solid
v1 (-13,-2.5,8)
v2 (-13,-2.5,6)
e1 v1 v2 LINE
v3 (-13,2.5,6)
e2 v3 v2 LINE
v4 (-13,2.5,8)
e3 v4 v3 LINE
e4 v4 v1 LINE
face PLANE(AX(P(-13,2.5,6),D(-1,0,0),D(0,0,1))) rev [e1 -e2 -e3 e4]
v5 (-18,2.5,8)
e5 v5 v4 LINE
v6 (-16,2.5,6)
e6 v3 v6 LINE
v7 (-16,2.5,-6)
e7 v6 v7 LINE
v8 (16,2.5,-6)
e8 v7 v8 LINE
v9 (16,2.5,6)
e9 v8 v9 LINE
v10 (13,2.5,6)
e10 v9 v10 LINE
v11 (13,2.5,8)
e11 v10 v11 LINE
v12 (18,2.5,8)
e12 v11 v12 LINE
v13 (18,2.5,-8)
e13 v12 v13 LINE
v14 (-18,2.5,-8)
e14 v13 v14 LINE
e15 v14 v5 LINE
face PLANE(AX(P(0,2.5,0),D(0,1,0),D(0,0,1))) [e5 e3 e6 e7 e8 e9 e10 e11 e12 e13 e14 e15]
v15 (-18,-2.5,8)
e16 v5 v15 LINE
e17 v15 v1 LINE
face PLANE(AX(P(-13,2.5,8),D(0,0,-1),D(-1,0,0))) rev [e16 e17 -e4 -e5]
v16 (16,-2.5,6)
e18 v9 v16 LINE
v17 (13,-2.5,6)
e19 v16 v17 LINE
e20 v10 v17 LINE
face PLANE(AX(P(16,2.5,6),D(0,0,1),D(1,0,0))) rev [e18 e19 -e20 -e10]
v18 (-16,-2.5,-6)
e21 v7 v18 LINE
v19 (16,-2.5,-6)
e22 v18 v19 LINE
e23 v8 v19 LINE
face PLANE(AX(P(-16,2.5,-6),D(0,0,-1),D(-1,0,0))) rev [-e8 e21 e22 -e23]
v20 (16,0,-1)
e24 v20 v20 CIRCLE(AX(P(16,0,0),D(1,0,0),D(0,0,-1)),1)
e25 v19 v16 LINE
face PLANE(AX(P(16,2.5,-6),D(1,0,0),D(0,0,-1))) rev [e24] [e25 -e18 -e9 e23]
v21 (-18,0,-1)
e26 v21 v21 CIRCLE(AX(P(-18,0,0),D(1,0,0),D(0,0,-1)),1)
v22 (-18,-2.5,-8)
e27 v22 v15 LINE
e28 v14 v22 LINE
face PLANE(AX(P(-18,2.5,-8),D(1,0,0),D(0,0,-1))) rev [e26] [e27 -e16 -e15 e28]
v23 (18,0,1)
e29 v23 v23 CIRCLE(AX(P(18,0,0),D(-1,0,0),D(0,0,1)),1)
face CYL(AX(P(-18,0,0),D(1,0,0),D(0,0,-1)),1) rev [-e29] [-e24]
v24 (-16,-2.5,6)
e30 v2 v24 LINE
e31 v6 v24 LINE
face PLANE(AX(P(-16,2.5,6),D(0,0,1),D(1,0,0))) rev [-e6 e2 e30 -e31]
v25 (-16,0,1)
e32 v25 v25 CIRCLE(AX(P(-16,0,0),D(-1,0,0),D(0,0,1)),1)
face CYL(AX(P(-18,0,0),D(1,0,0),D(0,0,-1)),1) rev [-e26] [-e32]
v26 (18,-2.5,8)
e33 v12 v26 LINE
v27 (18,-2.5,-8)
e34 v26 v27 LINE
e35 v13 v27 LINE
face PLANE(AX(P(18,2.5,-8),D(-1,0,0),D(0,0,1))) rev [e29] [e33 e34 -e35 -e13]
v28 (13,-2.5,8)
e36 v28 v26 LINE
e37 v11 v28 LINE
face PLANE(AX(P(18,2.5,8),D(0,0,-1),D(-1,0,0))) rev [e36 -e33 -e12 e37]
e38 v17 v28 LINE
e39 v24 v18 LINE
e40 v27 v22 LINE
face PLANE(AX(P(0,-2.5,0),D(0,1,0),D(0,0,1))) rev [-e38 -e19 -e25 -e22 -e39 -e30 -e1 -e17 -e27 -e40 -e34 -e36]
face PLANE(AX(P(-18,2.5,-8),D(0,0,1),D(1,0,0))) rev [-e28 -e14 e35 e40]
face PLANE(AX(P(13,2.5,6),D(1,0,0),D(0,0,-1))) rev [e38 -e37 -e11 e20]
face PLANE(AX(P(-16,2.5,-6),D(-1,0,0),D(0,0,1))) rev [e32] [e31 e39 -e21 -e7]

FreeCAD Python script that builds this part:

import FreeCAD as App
import Part
import Sketcher

V = App.Vector

doc = App.newDocument("Part")
params = doc.addObject("Spreadsheet::Sheet", "Params")
for row, (alias, value) in enumerate([
    ("sketch1_width", "5 mm"),
    ("sketch1_width2", "36 mm"),
    ("sketch1_width3", "3 mm"),
    ("sketch1_height", "2 mm"),
    ("sketch1_height2", "16 mm"),
    ("pad1_length", "5 mm"),
    ("sketch2_diameter", "2 mm"),
], start=1):
    params.set(f"A{row}", alias)
    params.set(f"B{row}", "=" + value)
    params.setAlias(f"B{row}", alias)

body = doc.addObject("PartDesign::Body", "Body")

sketch1 = body.newObject("Sketcher::SketchObject", "Sketch")
sketch1.AttachmentSupport = (doc.getObject("XZ_Plane"), [""])
sketch1.MapMode = "FlatFace"
sketch1.addGeometry(Part.LineSegment(V(13, 6, 0), V(13, 8, 0)), False)
sketch1.addGeometry(Part.LineSegment(V(13, 8, 0), V(18, 8, 0)), False)
sketch1.addGeometry(Part.LineSegment(V(18, 8, 0), V(18, -8, 0)), False)
sketch1.addGeometry(Part.LineSegment(V(18, -8, 0), V(-18, -8, 0)), False)
sketch1.addGeometry(Part.LineSegment(V(-18, -8, 0), V(-18, 8, 0)), False)
sketch1.addGeometry(Part.LineSegment(V(-18, 8, 0), V(-13, 8, 0)), False)
sketch1.addGeometry(Part.LineSegment(V(-13, 8, 0), V(-13, 6, 0)), False)
sketch1.addGeometry(Part.LineSegment(V(-13, 6, 0), V(-16, 6, 0)), False)
sketch1.addGeometry(Part.LineSegment(V(-16, 6, 0), V(-16, -6, 0)), False)
sketch1.addGeometry(Part.LineSegment(V(-16, -6, 0), V(16, -6, 0)), False)
sketch1.addGeometry(Part.LineSegment(V(16, -6, 0), V(16, 6, 0)), False)
sketch1.addGeometry(Part.LineSegment(V(16, 6, 0), V(13, 6, 0)), False)
sketch1.addConstraint(Sketcher.Constraint("Coincident", 0, 2, 1, 1))
sketch1.addConstraint(Sketcher.Constraint("Coincident", 1, 2, 2, 1))
sketch1.addConstraint(Sketcher.Constraint("Coincident", 2, 2, 3, 1))
sketch1.addConstraint(Sketcher.Constraint("Coincident", 3, 2, 4, 1))
sketch1.addConstraint(Sketcher.Constraint("Coincident", 4, 2, 5, 1))
sketch1.addConstraint(Sketcher.Constraint("Coincident", 5, 2, 6, 1))
sketch1.addConstraint(Sketcher.Constraint("Coincident", 6, 2, 7, 1))
sketch1.addConstraint(Sketcher.Constraint("Coincident", 7, 2, 8, 1))
sketch1.addConstraint(Sketcher.Constraint("Coincident", 8, 2, 9, 1))
sketch1.addConstraint(Sketcher.Constraint("Coincident", 9, 2, 10, 1))
sketch1.addConstraint(Sketcher.Constraint("Coincident", 10, 2, 11, 1))
sketch1.addConstraint(Sketcher.Constraint("Coincident", 11, 2, 0, 1))
sketch1.addConstraint(Sketcher.Constraint("Vertical", 0))
sketch1.addConstraint(Sketcher.Constraint("Horizontal", 1))
sketch1.addConstraint(Sketcher.Constraint("Vertical", 2))
sketch1.addConstraint(Sketcher.Constraint("Horizontal", 3))
sketch1.addConstraint(Sketcher.Constraint("Vertical", 4))
sketch1.addConstraint(Sketcher.Constraint("Horizontal", 5))
sketch1.addConstraint(Sketcher.Constraint("Vertical", 6))
sketch1.addConstraint(Sketcher.Constraint("Horizontal", 7))
sketch1.addConstraint(Sketcher.Constraint("Vertical", 8))
sketch1.addConstraint(Sketcher.Constraint("Horizontal", 9))
sketch1.addConstraint(Sketcher.Constraint("Vertical", 10))
sketch1.addConstraint(Sketcher.Constraint("Horizontal", 11))
sketch1.addConstraint(Sketcher.Constraint("Symmetric", 1, 2, 3, 2, -1, 1))
sketch1.addConstraint(Sketcher.Constraint("Symmetric", 7, 2, 9, 2, -1, 1))
sketch1.addConstraint(Sketcher.Constraint("Symmetric", 0, 2, 5, 2, -2))
sketch1.addConstraint(Sketcher.Constraint("Horizontal", 7, 2, 10, 2))
sketch1.addConstraint(Sketcher.Constraint("DistanceX", 1, 1, 1, 2, 5.0))
sketch1.addConstraint(Sketcher.Constraint("DistanceX", 3, 2, 3, 1, 36.0))
sketch1.addConstraint(Sketcher.Constraint("DistanceX", 7, 2, 7, 1, 3.0))
sketch1.addConstraint(Sketcher.Constraint("DistanceY", 0, 1, 0, 2, 2.0))
sketch1.addConstraint(Sketcher.Constraint("DistanceY", 2, 2, 2, 1, 16.0))
sketch1.setExpression("Constraints[28]", "Params.sketch1_width")
sketch1.setExpression("Constraints[29]", "Params.sketch1_width2")
sketch1.setExpression("Constraints[30]", "Params.sketch1_width3")
sketch1.setExpression("Constraints[31]", "Params.sketch1_height")
sketch1.setExpression("Constraints[32]", "Params.sketch1_height2")
pad1 = body.newObject("PartDesign::Pad", "Pad")
pad1.Profile = sketch1
pad1.setExpression("Length", "Params.pad1_length")
pad1.Midplane = True

sketch2 = body.newObject("Sketcher::SketchObject", "Sketch001")
sketch2.AttachmentSupport = (doc.getObject("YZ_Plane"), [""])
sketch2.MapMode = "FlatFace"
sketch2.AttachmentOffset = App.Placement(V(0, 0, 18), App.Rotation())
sketch2.addGeometry(Part.Circle(V(0, 0, 0), V(0, 0, 1), 1), False)
sketch2.addConstraint(Sketcher.Constraint("Coincident", 0, 3, -1, 1))
sketch2.addConstraint(Sketcher.Constraint("Diameter", 0, 2.0))
sketch2.setExpression("Constraints[1]", "Params.sketch2_diameter")
pocket1 = body.newObject("PartDesign::Pocket", "Pocket")
pocket1.Profile = sketch2
pocket1.Type = "ThroughAll"
pocket1.Midplane = True

doc.recompute()
